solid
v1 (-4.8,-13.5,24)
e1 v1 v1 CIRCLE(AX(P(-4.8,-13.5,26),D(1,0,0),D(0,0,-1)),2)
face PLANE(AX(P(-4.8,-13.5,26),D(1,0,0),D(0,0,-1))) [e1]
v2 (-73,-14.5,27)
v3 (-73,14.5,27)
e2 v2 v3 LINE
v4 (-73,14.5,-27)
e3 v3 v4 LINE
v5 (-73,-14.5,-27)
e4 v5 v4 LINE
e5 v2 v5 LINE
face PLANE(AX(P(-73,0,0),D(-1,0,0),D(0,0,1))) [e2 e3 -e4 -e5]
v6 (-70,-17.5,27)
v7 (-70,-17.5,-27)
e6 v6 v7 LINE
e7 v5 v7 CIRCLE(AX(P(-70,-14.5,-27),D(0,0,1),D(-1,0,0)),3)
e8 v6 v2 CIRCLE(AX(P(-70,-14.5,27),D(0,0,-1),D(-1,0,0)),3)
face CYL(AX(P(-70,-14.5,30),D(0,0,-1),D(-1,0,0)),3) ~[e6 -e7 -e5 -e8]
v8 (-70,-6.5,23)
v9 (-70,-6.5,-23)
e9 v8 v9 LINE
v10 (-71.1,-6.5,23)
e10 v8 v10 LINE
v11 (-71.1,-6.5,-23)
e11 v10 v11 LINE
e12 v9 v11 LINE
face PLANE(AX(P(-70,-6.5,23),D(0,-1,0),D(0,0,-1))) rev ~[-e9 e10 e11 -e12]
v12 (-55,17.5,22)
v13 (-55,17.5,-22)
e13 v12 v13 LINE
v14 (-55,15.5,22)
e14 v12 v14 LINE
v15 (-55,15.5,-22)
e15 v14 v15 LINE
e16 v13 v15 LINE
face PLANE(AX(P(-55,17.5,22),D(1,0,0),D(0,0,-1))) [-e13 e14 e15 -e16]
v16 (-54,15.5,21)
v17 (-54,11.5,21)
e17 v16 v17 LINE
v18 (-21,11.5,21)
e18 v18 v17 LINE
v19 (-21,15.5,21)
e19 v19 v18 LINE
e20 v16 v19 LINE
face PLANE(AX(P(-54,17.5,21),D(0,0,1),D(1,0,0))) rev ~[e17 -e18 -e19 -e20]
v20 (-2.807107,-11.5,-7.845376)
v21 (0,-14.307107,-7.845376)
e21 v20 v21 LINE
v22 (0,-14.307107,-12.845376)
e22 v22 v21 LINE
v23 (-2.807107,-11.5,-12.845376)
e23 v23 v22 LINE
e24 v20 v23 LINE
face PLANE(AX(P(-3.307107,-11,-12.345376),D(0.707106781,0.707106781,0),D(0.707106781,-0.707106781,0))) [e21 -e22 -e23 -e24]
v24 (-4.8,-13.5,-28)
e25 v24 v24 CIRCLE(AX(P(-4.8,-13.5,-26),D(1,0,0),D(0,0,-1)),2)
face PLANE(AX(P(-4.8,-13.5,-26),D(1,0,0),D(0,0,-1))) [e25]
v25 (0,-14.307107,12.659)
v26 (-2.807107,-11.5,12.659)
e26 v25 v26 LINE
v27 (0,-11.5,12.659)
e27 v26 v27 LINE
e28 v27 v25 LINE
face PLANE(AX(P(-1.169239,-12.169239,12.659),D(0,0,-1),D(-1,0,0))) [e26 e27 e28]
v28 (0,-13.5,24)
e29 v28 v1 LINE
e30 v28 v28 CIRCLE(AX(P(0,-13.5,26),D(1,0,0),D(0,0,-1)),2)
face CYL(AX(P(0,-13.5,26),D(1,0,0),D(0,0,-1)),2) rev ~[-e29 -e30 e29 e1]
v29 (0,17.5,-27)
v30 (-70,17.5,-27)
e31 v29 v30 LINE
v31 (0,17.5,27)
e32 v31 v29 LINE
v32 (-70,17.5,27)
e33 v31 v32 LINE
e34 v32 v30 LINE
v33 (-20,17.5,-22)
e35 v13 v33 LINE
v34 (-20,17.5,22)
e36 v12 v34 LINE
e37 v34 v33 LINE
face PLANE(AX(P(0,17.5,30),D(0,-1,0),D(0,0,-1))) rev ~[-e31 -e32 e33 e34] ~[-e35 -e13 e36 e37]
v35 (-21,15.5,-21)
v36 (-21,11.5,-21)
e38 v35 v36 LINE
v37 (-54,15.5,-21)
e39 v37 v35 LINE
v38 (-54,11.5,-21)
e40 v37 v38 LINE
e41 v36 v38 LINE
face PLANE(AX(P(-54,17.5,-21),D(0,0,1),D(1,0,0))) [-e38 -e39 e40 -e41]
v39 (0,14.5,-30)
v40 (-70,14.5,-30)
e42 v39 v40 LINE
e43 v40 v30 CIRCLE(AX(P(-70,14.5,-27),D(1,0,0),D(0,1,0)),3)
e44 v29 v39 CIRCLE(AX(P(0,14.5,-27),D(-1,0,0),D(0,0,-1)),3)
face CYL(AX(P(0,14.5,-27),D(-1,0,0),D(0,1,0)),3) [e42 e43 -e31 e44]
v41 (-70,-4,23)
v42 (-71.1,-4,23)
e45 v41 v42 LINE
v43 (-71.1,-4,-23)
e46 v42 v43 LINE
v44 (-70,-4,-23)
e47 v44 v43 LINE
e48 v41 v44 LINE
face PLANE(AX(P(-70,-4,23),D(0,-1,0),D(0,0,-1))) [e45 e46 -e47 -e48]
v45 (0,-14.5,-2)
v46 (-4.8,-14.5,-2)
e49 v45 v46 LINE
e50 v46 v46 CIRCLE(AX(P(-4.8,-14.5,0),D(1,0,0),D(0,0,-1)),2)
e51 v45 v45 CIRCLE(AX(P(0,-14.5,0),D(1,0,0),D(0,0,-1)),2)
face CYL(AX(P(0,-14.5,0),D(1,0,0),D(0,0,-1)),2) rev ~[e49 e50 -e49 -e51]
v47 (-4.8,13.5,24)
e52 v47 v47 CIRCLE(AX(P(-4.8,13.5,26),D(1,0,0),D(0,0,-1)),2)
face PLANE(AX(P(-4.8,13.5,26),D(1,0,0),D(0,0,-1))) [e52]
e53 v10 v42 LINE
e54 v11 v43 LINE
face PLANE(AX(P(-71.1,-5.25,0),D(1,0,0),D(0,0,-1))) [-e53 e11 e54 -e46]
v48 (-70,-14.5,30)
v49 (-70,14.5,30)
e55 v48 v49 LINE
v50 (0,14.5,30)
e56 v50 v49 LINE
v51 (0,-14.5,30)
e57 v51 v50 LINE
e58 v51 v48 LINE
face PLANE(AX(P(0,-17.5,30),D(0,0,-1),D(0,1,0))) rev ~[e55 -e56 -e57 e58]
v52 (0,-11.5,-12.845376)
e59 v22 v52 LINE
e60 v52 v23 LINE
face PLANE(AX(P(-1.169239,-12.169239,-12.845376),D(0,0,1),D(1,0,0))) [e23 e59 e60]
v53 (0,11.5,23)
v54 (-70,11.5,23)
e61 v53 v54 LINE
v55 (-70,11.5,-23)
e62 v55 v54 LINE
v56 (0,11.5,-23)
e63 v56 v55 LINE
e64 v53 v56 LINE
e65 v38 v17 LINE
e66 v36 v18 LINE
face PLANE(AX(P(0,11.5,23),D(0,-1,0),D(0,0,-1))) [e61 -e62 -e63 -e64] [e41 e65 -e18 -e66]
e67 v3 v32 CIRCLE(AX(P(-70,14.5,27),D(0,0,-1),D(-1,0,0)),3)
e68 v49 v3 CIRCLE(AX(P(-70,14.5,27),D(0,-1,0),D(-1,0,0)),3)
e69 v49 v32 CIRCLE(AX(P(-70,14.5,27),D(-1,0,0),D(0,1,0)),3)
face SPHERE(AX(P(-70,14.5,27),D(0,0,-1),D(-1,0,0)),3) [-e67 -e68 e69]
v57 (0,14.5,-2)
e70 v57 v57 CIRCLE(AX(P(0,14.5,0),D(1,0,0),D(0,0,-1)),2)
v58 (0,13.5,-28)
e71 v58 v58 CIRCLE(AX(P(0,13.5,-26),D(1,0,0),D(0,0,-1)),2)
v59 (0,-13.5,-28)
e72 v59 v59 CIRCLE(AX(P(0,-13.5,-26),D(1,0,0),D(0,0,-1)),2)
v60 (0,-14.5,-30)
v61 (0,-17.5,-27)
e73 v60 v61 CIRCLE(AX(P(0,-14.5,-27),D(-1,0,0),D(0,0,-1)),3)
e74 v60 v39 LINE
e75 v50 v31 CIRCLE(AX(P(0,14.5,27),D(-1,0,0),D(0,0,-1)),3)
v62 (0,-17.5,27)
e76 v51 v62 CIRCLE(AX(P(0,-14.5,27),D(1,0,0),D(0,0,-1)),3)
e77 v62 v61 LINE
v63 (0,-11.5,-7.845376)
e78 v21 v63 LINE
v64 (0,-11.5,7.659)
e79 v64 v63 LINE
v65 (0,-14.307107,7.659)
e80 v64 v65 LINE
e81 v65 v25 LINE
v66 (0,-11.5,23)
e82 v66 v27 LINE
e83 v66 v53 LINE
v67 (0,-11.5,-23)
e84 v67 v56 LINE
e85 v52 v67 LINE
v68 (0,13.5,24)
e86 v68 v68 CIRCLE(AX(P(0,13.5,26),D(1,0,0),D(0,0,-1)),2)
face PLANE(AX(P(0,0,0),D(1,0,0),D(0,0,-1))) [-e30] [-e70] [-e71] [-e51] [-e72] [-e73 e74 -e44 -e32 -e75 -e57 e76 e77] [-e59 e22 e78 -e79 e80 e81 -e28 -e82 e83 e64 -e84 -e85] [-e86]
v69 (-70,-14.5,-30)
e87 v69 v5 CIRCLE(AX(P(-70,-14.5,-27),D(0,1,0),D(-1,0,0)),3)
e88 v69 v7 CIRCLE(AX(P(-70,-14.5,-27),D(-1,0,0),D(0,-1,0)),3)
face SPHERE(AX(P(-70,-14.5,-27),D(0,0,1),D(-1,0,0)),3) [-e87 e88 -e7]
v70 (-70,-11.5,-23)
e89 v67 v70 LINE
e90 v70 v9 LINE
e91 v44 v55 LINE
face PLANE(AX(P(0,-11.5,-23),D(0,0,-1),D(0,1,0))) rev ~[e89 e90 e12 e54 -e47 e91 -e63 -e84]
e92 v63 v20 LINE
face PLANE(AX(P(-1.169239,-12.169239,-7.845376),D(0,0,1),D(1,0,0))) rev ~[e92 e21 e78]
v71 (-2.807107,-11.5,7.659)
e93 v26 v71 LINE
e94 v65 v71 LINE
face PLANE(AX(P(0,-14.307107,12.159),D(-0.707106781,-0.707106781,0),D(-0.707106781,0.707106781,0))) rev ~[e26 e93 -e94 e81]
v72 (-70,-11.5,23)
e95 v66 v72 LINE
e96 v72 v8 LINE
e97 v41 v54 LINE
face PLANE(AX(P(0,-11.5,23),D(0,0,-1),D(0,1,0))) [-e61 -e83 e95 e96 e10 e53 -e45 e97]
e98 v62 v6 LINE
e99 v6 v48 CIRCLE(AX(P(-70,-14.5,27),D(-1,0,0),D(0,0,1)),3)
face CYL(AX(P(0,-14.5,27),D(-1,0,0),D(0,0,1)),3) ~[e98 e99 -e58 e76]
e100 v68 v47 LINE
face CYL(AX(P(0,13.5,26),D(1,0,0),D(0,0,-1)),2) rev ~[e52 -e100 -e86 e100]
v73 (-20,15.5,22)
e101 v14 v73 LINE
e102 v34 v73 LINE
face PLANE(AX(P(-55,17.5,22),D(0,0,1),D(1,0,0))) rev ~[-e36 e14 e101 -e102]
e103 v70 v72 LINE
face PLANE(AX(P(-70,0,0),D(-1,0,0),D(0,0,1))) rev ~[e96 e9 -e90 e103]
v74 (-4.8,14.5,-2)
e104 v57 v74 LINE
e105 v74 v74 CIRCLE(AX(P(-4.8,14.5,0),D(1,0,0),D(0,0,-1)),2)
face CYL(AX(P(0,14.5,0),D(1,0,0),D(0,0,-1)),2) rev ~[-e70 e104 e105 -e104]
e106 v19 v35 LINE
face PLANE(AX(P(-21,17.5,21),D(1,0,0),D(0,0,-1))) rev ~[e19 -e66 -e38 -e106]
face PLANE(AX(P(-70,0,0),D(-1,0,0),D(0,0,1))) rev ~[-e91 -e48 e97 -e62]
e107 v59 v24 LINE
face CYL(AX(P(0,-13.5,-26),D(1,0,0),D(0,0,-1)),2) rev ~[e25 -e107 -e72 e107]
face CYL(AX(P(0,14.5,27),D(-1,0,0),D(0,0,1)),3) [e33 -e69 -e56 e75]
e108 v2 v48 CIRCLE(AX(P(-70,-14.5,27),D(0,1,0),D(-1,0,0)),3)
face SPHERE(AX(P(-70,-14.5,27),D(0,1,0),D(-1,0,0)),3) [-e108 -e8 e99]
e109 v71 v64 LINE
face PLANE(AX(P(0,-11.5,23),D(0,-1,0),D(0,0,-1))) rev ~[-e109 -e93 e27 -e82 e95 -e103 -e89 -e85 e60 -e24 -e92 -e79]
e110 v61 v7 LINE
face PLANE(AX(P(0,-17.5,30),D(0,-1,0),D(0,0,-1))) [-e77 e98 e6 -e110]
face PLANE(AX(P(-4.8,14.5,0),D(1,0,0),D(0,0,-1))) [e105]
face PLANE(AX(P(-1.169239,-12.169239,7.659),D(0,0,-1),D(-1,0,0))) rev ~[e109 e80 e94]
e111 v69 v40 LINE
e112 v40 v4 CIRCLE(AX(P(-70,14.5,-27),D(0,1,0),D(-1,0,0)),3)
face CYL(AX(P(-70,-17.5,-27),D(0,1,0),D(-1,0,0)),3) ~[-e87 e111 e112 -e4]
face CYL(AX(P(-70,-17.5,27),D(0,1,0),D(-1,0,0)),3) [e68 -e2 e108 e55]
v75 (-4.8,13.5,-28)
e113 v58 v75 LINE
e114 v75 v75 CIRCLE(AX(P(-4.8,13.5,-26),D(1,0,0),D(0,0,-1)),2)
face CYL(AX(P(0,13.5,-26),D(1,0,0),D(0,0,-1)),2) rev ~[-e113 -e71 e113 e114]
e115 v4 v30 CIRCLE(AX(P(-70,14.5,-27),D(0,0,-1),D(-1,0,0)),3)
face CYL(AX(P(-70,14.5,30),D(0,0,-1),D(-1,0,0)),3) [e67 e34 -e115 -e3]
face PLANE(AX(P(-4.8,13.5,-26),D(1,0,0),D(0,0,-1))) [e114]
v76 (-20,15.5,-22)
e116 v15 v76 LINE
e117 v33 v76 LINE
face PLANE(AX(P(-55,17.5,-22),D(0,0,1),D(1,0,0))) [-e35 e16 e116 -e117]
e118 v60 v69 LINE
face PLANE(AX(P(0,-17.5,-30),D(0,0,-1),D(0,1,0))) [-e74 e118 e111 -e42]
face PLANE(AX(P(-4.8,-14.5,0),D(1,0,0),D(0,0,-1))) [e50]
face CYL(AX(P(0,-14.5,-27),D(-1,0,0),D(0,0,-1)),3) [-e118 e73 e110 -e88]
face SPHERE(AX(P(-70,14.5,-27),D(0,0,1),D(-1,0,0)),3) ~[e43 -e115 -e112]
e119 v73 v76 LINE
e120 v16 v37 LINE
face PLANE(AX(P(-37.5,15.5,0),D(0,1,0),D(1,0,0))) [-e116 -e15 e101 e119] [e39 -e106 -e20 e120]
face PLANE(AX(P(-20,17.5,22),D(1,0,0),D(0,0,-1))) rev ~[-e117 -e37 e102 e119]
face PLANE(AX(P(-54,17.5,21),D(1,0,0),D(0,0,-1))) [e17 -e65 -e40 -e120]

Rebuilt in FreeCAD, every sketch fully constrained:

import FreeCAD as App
import Part
import Sketcher

V = App.Vector


def edges_at(feature, points):
    """Names of the edges that pass closest to the given points."""
    edges = feature.Shape.Edges
    near = lambda p: min(range(len(edges)), key=lambda i: edges[i].distToShape(Part.Vertex(*p))[0])
    return sorted({f"Edge{near(p) + 1}" for p in points})


def add_polygon(sketch, points):
    """Adds a closed chain of lines whose ends are joined by coincident constraints."""
    first, n = sketch.GeometryCount, len(points)
    for a, b in zip(points, points[1:] + points[:1]):
        sketch.addGeometry(Part.LineSegment(App.Vector(*a, 0), App.Vector(*b, 0)), False)
    for i in range(n):
        sketch.addConstraint(Sketcher.Constraint("Coincident", first + i, 2, first + (i + 1) % n, 1))

doc = App.newDocument("Part")
body = doc.addObject("PartDesign::Body", "Body")

sketch1 = doc.addObject("Sketcher::SketchObject", "Sketch")
body.addObject(sketch1)
sketch1.AttachmentSupport = (doc.YZ_Plane, [""])
sketch1.MapMode = "FlatFace"
add_polygon(sketch1, [(18, 30), (-18, 30), (-18, -30), (18, -30)])
add_polygon(sketch1, [(-12, -23), (-12, 23), (12, 23), (12, -23)])
sketch1.addConstraint([
    Sketcher.Constraint("Horizontal", 0),
    Sketcher.Constraint("Vertical", 1),
    Sketcher.Constraint("Horizontal", 2),
    Sketcher.Constraint("Vertical", 3),
    Sketcher.Constraint("Vertical", 4),
    Sketcher.Constraint("Horizontal", 5),
    Sketcher.Constraint("Vertical", 6),
    Sketcher.Constraint("Horizontal", 7),
    Sketcher.Constraint("Symmetric", 0, 2, 2, 2, -1, 1),
    Sketcher.Constraint("Symmetric", 4, 2, 6, 2, -1, 1),
    Sketcher.Constraint("DistanceX", 0, 2, 0, 1, 35.0),
    Sketcher.Constraint("DistanceX", 5, 1, 5, 2, 23.0),
    Sketcher.Constraint("DistanceY", 1, 2, 1, 1, 60.0),
    Sketcher.Constraint("DistanceY", 4, 1, 4, 2, 46.0),
])
pad1 = doc.addObject("PartDesign::Pad", "Pad")
body.addObject(pad1)
pad1.Profile = sketch1
pad1.Length = 73
pad1.Reversed = True

sketch2 = doc.addObject("Sketcher::SketchObject", "Sketch001")
body.addObject(sketch2)
sketch2.AttachmentSupport = (doc.YZ_Plane, [""])
sketch2.MapMode = "FlatFace"
sketch2.AttachmentOffset = App.Placement(V(0, 0, -73), App.Rotation())
add_polygon(sketch2, [(12, -23), (-12, -23), (-12, 23), (12, 23)])
sketch2.addConstraint([
    Sketcher.Constraint("Horizontal", 0),
    Sketcher.Constraint("Vertical", 1),
    Sketcher.Constraint("Horizontal", 2),
    Sketcher.Constraint("Vertical", 3),
    Sketcher.Constraint("Symmetric", 0, 2, 2, 2, -1, 1),
    Sketcher.Constraint("DistanceX", 0, 2, 0, 1, 23.0),
    Sketcher.Constraint("DistanceY", 1, 1, 1, 2, 46.0),
])
pad2 = doc.addObject("PartDesign::Pad", "Pad001")
body.addObject(pad2)
pad2.Profile = sketch2
pad2.Length = 3

sketch3 = doc.addObject("Sketcher::SketchObject", "Sketch002")
body.addObject(sketch3)
sketch3.AttachmentSupport = (doc.YZ_Plane, [""])
sketch3.MapMode = "FlatFace"
sketch3.addGeometry([
    Part.Circle(V(13.5, 26, 0), V(0, 0, 1), 2),
    Part.Circle(V(14.5, 0, 0), V(0, 0, 1), 2),
    Part.Circle(V(13.5, -26, 0), V(0, 0, 1), 2),
    Part.Circle(V(-14.5, 0, 0), V(0, 0, 1), 2),
    Part.Circle(V(-13.5, 26, 0), V(0, 0, 1), 2),
    Part.Circle(V(-13.5, -26, 0), V(0, 0, 1), 2),
], False)
sketch3.addConstraint([
    Sketcher.Constraint("Equal", 0, 1),
    Sketcher.Constraint("Equal", 1, 2),
    Sketcher.Constraint("Equal", 2, 3),
    Sketcher.Constraint("Equal", 3, 4),
    Sketcher.Constraint("Equal", 4, 5),
    Sketcher.Constraint("Symmetric", 1, 3, 3, 3, -1, 1),
    Sketcher.Constraint("Symmetric", 2, 3, 4, 3, -1, 1),
    Sketcher.Constraint("Symmetric", 0, 3, 5, 3, -1, 1),
    Sketcher.Constraint("Symmetric", 0, 3, 4, 3, -2),
    Sketcher.Constraint("PointOnObject", 1, 3, -1),
    Sketcher.Constraint("Diameter", 0, 4.0),
    Sketcher.Constraint("DistanceY", -1, 1, 0, 3, 26.0),
    Sketcher.Constraint("DistanceX", 0, 3, 1, 3, 1.0),
    Sketcher.Constraint("DistanceX", 3, 3, 1, 3, 29.0),
])
pocket1 = doc.addObject("PartDesign::Pocket", "Pocket")
body.addObject(pocket1)
pocket1.Profile = sketch3
pocket1.Length = 4.8
doc.recompute()

fillet = doc.addObject("PartDesign::Fillet", "Fillet")
body.addObject(fillet)
fillet.Base = (pocket1, edges_at(pocket1, [
    (-73, 17.5, 0),
    (-73, 0, 30),
    (-73, -17.5, 0),
    (-73, 0, -30),
    (-36.5, -17.5, 30),
    (-36.5, 17.5, 30),
    (-36.5, 17.5, -30),
    (-36.5, -17.5, -30),
]))
fillet.Radius = 3

sketch4 = doc.addObject("Sketcher::SketchObject", "Sketch003")
body.addObject(sketch4)
sketch4.AttachmentSupport = (doc.YZ_Plane, [""])
sketch4.MapMode = "FlatFace"
sketch4.AttachmentOffset = App.Placement(V(0, 0, -70), App.Rotation())
add_polygon(sketch4, [(-4, 23), (-6.5, 23), (-6.5, -23), (-4, -23)])
sketch4.addConstraint([
    Sketcher.Constraint("Horizontal", 0),
    Sketcher.Constraint("Vertical", 1),
    Sketcher.Constraint("Horizontal", 2),
    Sketcher.Constraint("Vertical", 3),
    Sketcher.Constraint("DistanceY", 1, 2, 1, 1, 46.0),
    Sketcher.Constraint("DistanceX", 0, 2, 0, 1, 2.5),
    Sketcher.Constraint("DistanceY", -1, 1, 0, 2, 23.0),
    Sketcher.Constraint("DistanceX", 2, 2, -1, 1, 4.0),
])
pocket2 = doc.addObject("PartDesign::Pocket", "Pocket001")
body.addObject(pocket2)
pocket2.Profile = sketch4
pocket2.Length = 1.1

sketch5 = doc.addObject("Sketcher::SketchObject", "Sketch004")
body.addObject(sketch5)
sketch5.AttachmentSupport = (doc.XZ_Plane, [""])
sketch5.MapMode = "FlatFace"
sketch5.AttachmentOffset = App.Placement(V(0, 0, -17.5), App.Rotation())
add_polygon(sketch5, [(-54, -21), (-54, 21), (-21, 21), (-21, -21)])
sketch5.addConstraint([
    Sketcher.Constraint("Vertical", 0),
    Sketcher.Constraint("Horizontal", 1),
    Sketcher.Constraint("Vertical", 2),
    Sketcher.Constraint("Horizontal", 3),
    Sketcher.Constraint("DistanceX", 1, 1, 1, 2, 33.0),
    Sketcher.Constraint("DistanceY", 0, 1, 0, 2, 42.0),
    Sketcher.Constraint("DistanceX", 0, 2, -1, 1, 54.0),
    Sketcher.Constraint("DistanceY", -1, 1, 0, 2, 21.0),
])
pocket3 = doc.addObject("PartDesign::Pocket", "Pocket002")
body.addObject(pocket3)
pocket3.Profile = sketch5
pocket3.Length = 10
pocket3.Reversed = True

sketch6 = doc.addObject("Sketcher::SketchObject", "Sketch005")
body.addObject(sketch6)
sketch6.AttachmentSupport = (doc.XZ_Plane, [""])
sketch6.MapMode = "FlatFace"
sketch6.AttachmentOffset = App.Placement(V(0, 0, -17.5), App.Rotation())
add_polygon(sketch6, [(-55, -22), (-55, 22), (-20, 22), (-20, -22)])
add_polygon(sketch6, [(-21, 21), (-54, 21), (-54, -21), (-21, -21)])
sketch6.addConstraint([
    Sketcher.Constraint("Vertical", 0),
    Sketcher.Constraint("Horizontal", 1),
    Sketcher.Constraint("Vertical", 2),
    Sketcher.Constraint("Horizontal", 3),
    Sketcher.Constraint("Horizontal", 4),
    Sketcher.Constraint("Vertical", 5),
    Sketcher.Constraint("Horizontal", 6),
    Sketcher.Constraint("Vertical", 7),
    Sketcher.Constraint("DistanceX", 1, 1, 1, 2, 35.0),
    Sketcher.Constraint("DistanceX", 4, 2, 4, 1, 33.0),
    Sketcher.Constraint("DistanceY", 0, 1, 0, 2, 44.0),
    Sketcher.Constraint("DistanceY", 5, 2, 5, 1, 42.0),
    Sketcher.Constraint("DistanceX", 0, 2, -1, 1, 55.0),
    Sketcher.Constraint("DistanceY", -1, 1, 0, 2, 22.0),
    Sketcher.Constraint("DistanceX", 4, 2, -1, 1, 54.0),
    Sketcher.Constraint("DistanceY", -1, 1, 4, 2, 21.0),
])
pocket4 = doc.addObject("PartDesign::Pocket", "Pocket003")
body.addObject(pocket4)
pocket4.Profile = sketch6
pocket4.Length = 2
pocket4.Reversed = True

sketch7 = doc.addObject("Sketcher::SketchObject", "Sketch006")
body.addObject(sketch7)
sketch7.AttachmentSupport = (doc.XY_Plane, [""])
sketch7.MapMode = "FlatFace"
sketch7.AttachmentOffset = App.Placement(V(0, 0, 12.159), App.Rotation())
add_polygon(sketch7, [(0, -14.3), (0, -11), (-3.3, -11)])
sketch7.addConstraint([
    Sketcher.Constraint("Vertical", 0),
    Sketcher.Constraint("Horizontal", 1),
    Sketcher.Constraint("PointOnObject", 0, 2, -2),
    Sketcher.Constraint("Equal", 1, 0),
    Sketcher.Constraint("DistanceY", 0, 2, -1, 1, 11.0),
    Sketcher.Constraint("DistanceX", 1, 2, 1, 1, 3.307107),
])
pocket5 = doc.addObject("PartDesign::Pocket", "Pocket004")
body.addObject(pocket5)
pocket5.Profile = sketch7
pocket5.Type = "TwoLengths"
pocket5.Length = 0.5
pocket5.Length2 = 4.5
pocket5.Reversed = True

sketch8 = doc.addObject("Sketcher::SketchObject", "Sketch007")
body.addObject(sketch8)
sketch8.AttachmentSupport = (doc.XY_Plane, [""])
sketch8.MapMode = "FlatFace"
sketch8.AttachmentOffset = App.Placement(V(0, 0, -12.345376), App.Rotation())
add_polygon(sketch8, [(-3.3, -11), (0, -11), (0, -14.3)])
sketch8.addConstraint([
    Sketcher.Constraint("Horizontal", 0),
    Sketcher.Constraint("Vertical", 1),
    Sketcher.Constraint("PointOnObject", 0, 2, -2),
    Sketcher.Constraint("Equal", 0, 1),
    Sketcher.Constraint("DistanceY", 0, 2, -1, 1, 11.0),
    Sketcher.Constraint("DistanceX", 0, 1, 0, 2, 3.307107),
])
pocket6 = doc.addObject("PartDesign::Pocket", "Pocket005")
body.addObject(pocket6)
pocket6.Profile = sketch8
pocket6.Type = "TwoLengths"
pocket6.Length = 0.5
pocket6.Length2 = 4.5

doc.recompute()
